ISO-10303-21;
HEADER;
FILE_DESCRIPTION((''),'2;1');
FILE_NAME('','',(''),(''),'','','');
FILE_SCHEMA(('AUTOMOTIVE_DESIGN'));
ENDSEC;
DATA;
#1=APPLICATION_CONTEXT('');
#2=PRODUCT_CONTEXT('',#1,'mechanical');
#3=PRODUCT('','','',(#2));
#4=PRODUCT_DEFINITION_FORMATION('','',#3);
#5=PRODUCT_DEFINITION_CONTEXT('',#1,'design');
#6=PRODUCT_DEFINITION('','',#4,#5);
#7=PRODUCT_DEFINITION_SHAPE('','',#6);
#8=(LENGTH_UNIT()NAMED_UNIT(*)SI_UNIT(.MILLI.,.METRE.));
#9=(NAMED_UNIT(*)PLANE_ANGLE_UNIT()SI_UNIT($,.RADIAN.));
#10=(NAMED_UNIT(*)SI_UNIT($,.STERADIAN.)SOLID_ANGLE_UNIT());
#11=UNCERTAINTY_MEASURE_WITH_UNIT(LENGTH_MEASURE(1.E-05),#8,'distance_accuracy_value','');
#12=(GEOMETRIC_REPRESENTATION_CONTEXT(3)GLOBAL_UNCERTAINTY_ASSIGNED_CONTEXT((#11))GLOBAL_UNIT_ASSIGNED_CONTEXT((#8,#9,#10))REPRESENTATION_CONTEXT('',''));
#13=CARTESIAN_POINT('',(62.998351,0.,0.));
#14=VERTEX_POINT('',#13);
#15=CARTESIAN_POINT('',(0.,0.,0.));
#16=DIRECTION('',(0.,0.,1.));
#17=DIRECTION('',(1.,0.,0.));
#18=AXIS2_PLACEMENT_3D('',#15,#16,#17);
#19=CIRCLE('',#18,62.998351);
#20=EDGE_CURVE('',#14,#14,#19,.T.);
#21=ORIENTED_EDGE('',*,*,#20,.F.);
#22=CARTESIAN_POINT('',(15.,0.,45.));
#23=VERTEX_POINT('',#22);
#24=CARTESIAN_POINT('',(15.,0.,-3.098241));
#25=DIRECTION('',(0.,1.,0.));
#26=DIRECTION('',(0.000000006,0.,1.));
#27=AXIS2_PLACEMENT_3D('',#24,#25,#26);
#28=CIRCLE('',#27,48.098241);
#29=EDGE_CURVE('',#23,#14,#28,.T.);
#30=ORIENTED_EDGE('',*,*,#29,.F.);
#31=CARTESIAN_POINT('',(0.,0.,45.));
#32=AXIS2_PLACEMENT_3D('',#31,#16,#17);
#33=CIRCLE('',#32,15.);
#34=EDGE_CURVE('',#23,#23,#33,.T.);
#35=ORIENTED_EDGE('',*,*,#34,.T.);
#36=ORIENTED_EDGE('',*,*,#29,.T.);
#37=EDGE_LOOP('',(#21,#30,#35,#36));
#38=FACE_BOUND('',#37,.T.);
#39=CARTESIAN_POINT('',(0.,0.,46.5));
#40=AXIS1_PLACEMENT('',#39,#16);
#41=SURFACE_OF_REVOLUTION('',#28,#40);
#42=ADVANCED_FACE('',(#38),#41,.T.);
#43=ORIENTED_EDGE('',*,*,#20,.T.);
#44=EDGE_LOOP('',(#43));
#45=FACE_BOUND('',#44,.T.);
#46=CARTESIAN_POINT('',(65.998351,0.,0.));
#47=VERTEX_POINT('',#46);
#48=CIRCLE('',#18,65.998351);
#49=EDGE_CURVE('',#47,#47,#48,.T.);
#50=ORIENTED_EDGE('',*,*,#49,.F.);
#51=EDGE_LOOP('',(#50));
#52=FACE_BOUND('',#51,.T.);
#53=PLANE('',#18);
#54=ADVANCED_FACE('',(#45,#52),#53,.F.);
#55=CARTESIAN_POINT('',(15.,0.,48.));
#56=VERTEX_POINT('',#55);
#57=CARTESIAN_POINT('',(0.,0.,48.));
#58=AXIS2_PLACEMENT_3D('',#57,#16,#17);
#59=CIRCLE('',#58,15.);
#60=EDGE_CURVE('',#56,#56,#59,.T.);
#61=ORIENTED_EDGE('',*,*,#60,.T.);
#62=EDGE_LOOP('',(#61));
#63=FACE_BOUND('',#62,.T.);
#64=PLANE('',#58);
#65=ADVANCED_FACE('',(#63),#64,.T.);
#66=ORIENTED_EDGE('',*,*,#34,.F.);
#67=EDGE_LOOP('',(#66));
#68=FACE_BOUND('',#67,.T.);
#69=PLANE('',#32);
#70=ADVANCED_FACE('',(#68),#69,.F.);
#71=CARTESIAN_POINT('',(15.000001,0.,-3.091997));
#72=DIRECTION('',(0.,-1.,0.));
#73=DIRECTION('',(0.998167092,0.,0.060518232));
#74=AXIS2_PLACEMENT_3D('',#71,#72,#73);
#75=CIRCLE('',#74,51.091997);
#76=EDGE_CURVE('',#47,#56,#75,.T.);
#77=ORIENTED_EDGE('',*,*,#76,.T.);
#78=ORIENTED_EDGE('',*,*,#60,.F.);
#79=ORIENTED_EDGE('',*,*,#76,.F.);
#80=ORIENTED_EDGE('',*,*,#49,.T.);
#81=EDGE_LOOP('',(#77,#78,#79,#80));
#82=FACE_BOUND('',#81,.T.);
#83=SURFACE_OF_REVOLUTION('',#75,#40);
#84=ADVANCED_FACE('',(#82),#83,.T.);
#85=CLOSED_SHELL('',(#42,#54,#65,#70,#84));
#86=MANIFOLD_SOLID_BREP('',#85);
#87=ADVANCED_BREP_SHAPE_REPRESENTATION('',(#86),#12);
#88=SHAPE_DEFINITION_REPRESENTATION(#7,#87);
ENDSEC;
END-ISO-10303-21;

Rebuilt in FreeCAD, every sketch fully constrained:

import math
import FreeCAD as App
import Part
import Sketcher

doc = App.newDocument("Part")
params = doc.addObject("Spreadsheet::Sheet", "Params")
for row, (alias, value) in enumerate([
    ("sketch1_width", "15 mm"),
    ("sketch1_width2", "3 mm"),
    ("revolution_angle", "360 deg"),
], start=1):
    params.set(f"A{row}", alias)
    params.set(f"B{row}", "=" + value)
    params.setAlias(f"B{row}", alias)

body = doc.addObject("PartDesign::Body", "Body")

sketch1 = doc.addObject("Sketcher::SketchObject", "Sketch")
body.addObject(sketch1)
sketch1.AttachmentSupport = (doc.XZ_Plane, [""])
sketch1.MapMode = "FlatFace"
sketch1.addGeometry(Part.LineSegment(App.Vector(0, 48, 0), App.Vector(0, 45, 0)), False)
sketch1.addGeometry(Part.LineSegment(App.Vector(0, 45, 0), App.Vector(15, 45, 0)), False)
sketch1.addGeometry(Part.ArcOfCircle(Part.Circle(App.Vector(15, -3.1, 0), App.Vector(0, 0, 1), 48.1), math.radians(4), math.radians(90)), False)
sketch1.addGeometry(Part.LineSegment(App.Vector(63, 0, 0), App.Vector(66, 0, 0)), False)
sketch1.addGeometry(Part.ArcOfCircle(Part.Circle(App.Vector(15, -3.1, 0), App.Vector(0, 0, 1), 51.1), math.radians(3), math.radians(90)), False)
sketch1.addGeometry(Part.LineSegment(App.Vector(15, 48, 0), App.Vector(0, 48, 0)), False)
sketch1.addConstraint(Sketcher.Constraint("Coincident", 0, 2, 1, 1))
sketch1.addConstraint(Sketcher.Constraint("Tangent", 1, 2, 2, 2))
sketch1.addConstraint(Sketcher.Constraint("Coincident", 2, 1, 3, 1))
sketch1.addConstraint(Sketcher.Constraint("Coincident", 3, 2, 4, 1))
sketch1.addConstraint(Sketcher.Constraint("Tangent", 4, 2, 5, 1))
sketch1.addConstraint(Sketcher.Constraint("Coincident", 5, 2, 0, 1))
sketch1.addConstraint(Sketcher.Constraint("Vertical", 0))
sketch1.addConstraint(Sketcher.Constraint("Horizontal", 1))
sketch1.addConstraint(Sketcher.Constraint("Horizontal", 3))
sketch1.addConstraint(Sketcher.Constraint("Horizontal", 5))
sketch1.addConstraint(Sketcher.Constraint("PointOnObject", 0, 2, -2))
sketch1.addConstraint(Sketcher.Constraint("PointOnObject", 2, 1, -1))
sketch1.addConstraint(Sketcher.Constraint("Vertical", 2, 3, 4, 3))
sketch1.addConstraint(Sketcher.Constraint("Equal", 3, 0))
sketch1.addConstraint(Sketcher.Constraint("DistanceX", 1, 1, 1, 2, 15.0))
sketch1.addConstraint(Sketcher.Constraint("DistanceX", 3, 1, 3, 2, 3.0))
sketch1.addConstraint(Sketcher.Constraint("DistanceY", -1, 1, 0, 2, 45.0))
sketch1.addConstraint(Sketcher.Constraint("Radius", 2, 48.098241))
sketch1.setExpression("Constraints[14]", "Params.sketch1_width")
sketch1.setExpression("Constraints[15]", "Params.sketch1_width2")
revolution = doc.addObject("PartDesign::Revolution", "Revolution")
body.addObject(revolution)
revolution.Profile = sketch1
revolution.ReferenceAxis = (sketch1, ["V_Axis"])
revolution.setExpression("Angle", "Params.revolution_angle")

doc.recompute()
